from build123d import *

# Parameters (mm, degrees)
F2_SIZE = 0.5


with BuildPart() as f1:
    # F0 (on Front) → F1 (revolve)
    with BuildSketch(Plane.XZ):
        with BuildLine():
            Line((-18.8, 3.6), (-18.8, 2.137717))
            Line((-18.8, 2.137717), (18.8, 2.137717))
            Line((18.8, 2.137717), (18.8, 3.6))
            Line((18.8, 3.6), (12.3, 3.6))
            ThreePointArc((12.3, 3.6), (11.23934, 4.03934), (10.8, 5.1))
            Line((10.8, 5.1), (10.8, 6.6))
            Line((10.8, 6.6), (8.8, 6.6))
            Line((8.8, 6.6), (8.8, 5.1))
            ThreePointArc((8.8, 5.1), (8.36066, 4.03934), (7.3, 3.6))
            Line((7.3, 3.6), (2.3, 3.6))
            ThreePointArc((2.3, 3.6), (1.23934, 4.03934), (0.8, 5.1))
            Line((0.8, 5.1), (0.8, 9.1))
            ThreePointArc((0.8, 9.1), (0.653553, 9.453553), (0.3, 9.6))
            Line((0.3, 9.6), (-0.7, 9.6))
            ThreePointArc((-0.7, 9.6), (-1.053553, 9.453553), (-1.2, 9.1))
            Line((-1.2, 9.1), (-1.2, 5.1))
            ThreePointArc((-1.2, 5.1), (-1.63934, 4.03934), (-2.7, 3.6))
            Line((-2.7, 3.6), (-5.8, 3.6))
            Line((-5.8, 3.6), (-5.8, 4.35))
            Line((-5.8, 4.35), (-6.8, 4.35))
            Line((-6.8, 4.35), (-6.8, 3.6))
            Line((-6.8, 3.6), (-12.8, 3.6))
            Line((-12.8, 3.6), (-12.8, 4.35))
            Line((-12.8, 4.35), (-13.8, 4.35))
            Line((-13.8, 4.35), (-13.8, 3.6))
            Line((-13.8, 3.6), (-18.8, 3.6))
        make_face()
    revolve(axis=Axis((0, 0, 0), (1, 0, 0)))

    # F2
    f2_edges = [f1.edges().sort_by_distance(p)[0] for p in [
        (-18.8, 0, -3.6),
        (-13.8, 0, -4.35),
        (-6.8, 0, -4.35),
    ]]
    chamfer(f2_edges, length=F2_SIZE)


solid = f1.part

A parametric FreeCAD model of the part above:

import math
import FreeCAD as App
import Part
import Sketcher


def edges_at(feature, points):
    """Names of the edges that pass closest to the given points."""
    edges = feature.Shape.Edges
    near = lambda p: min(range(len(edges)), key=lambda i: edges[i].distToShape(Part.Vertex(*p))[0])
    return sorted({f"Edge{near(p) + 1}" for p in points})

doc = App.newDocument("Part")
body = doc.addObject("PartDesign::Body", "Body")

# Sketch on XZ plane
sketch1 = body.newObject("Sketcher::SketchObject", "Sketch")
sketch1.AttachmentSupport = (doc.getObject("XZ_Plane"), [""])
sketch1.MapMode = "FlatFace"
sketch1.addGeometry([
    Part.LineSegment(App.Vector(-18.8, 3.6, 0), App.Vector(-18.8, 2.137717, 0)),  # 0
    Part.LineSegment(App.Vector(-18.8, 2.137717, 0), App.Vector(18.8, 2.137717, 0)),  # 1
    Part.LineSegment(App.Vector(18.8, 2.137717, 0), App.Vector(18.8, 3.6, 0)),  # 2
    Part.LineSegment(App.Vector(18.8, 3.6, 0), App.Vector(12.3, 3.6, 0)),  # 3
    Part.ArcOfCircle(Part.Circle(App.Vector(12.300001, 5.100001, 0), App.Vector(0, 0, 1), 1.500001), math.radians(-179.999978), math.radians(-90.000022)),  # 4
    Part.LineSegment(App.Vector(10.8, 5.1, 0), App.Vector(10.8, 6.6, 0)),  # 5
    Part.LineSegment(App.Vector(10.8, 6.6, 0), App.Vector(8.8, 6.6, 0)),  # 6
    Part.LineSegment(App.Vector(8.8, 6.6, 0), App.Vector(8.8, 5.1, 0)),  # 7
    Part.ArcOfCircle(Part.Circle(App.Vector(7.299999, 5.100001, 0), App.Vector(0, 0, 1), 1.500001), math.radians(-89.999978), math.radians(-0.000022)),  # 8
    Part.LineSegment(App.Vector(7.3, 3.6, 0), App.Vector(2.3, 3.6, 0)),  # 9
    Part.ArcOfCircle(Part.Circle(App.Vector(2.300001, 5.100001, 0), App.Vector(0, 0, 1), 1.500001), math.radians(-179.999978), math.radians(-90.000022)),  # 10
    Part.LineSegment(App.Vector(0.8, 5.1, 0), App.Vector(0.8, 9.1, 0)),  # 11
    Part.ArcOfCircle(Part.Circle(App.Vector(0.299999, 9.099999, 0), App.Vector(0, 0, 1), 0.500001), math.radians(0.000153), math.radians(89.999847)),  # 12
    Part.LineSegment(App.Vector(0.3, 9.6, 0), App.Vector(-0.7, 9.6, 0)),  # 13
    Part.ArcOfCircle(Part.Circle(App.Vector(-0.699999, 9.099999, 0), App.Vector(0, 0, 1), 0.500001), math.radians(90.000153), math.radians(179.999847)),  # 14
    Part.LineSegment(App.Vector(-1.2, 9.1, 0), App.Vector(-1.2, 5.1, 0)),  # 15
    Part.ArcOfCircle(Part.Circle(App.Vector(-2.700001, 5.100001, 0), App.Vector(0, 0, 1), 1.500001), math.radians(-89.999978), math.radians(-0.000022)),  # 16
    Part.LineSegment(App.Vector(-2.7, 3.6, 0), App.Vector(-5.8, 3.6, 0)),  # 17
    Part.LineSegment(App.Vector(-5.8, 3.6, 0), App.Vector(-5.8, 4.35, 0)),  # 18
    Part.LineSegment(App.Vector(-5.8, 4.35, 0), App.Vector(-6.8, 4.35, 0)),  # 19
    Part.LineSegment(App.Vector(-6.8, 4.35, 0), App.Vector(-6.8, 3.6, 0)),  # 20
    Part.LineSegment(App.Vector(-6.8, 3.6, 0), App.Vector(-12.8, 3.6, 0)),  # 21
    Part.LineSegment(App.Vector(-12.8, 3.6, 0), App.Vector(-12.8, 4.35, 0)),  # 22
    Part.LineSegment(App.Vector(-12.8, 4.35, 0), App.Vector(-13.8, 4.35, 0)),  # 23
    Part.LineSegment(App.Vector(-13.8, 4.35, 0), App.Vector(-13.8, 3.6, 0)),  # 24
    Part.LineSegment(App.Vector(-13.8, 3.6, 0), App.Vector(-18.8, 3.6, 0)),  # 25
], False)
sketch1.addConstraint([
    Sketcher.Constraint("Coincident", 0, 2, 1, 1),
    Sketcher.Constraint("Coincident", 1, 2, 2, 1),
    Sketcher.Constraint("Coincident", 2, 2, 3, 1),
    Sketcher.Constraint("Tangent", 3, 2, 4, 2),
    Sketcher.Constraint("Tangent", 4, 1, 5, 1),
    Sketcher.Constraint("Coincident", 5, 2, 6, 1),
    Sketcher.Constraint("Coincident", 6, 2, 7, 1),
    Sketcher.Constraint("Tangent", 7, 2, 8, 2),
    Sketcher.Constraint("Tangent", 8, 1, 9, 1),
    Sketcher.Constraint("Tangent", 9, 2, 10, 2),
    Sketcher.Constraint("Tangent", 10, 1, 11, 1),
    Sketcher.Constraint("Coincident", 11, 2, 12, 1),
    Sketcher.Constraint("Coincident", 12, 2, 13, 1),
    Sketcher.Constraint("Coincident", 13, 2, 14, 1),
    Sketcher.Constraint("Coincident", 14, 2, 15, 1),
    Sketcher.Constraint("Tangent", 15, 2, 16, 2),
    Sketcher.Constraint("Tangent", 16, 1, 17, 1),
    Sketcher.Constraint("Coincident", 17, 2, 18, 1),
    Sketcher.Constraint("Coincident", 18, 2, 19, 1),
    Sketcher.Constraint("Coincident", 19, 2, 20, 1),
    Sketcher.Constraint("Coincident", 20, 2, 21, 1),
    Sketcher.Constraint("Coincident", 21, 2, 22, 1),
    Sketcher.Constraint("Coincident", 22, 2, 23, 1),
    Sketcher.Constraint("Coincident", 23, 2, 24, 1),
    Sketcher.Constraint("Coincident", 24, 2, 25, 1),
    Sketcher.Constraint("Coincident", 25, 2, 0, 1),
    Sketcher.Constraint("Vertical", 0),
    Sketcher.Constraint("Horizontal", 1),
    Sketcher.Constraint("Vertical", 2),
    Sketcher.Constraint("Horizontal", 3),
    Sketcher.Constraint("Vertical", 5),
    Sketcher.Constraint("Horizontal", 6),
    Sketcher.Constraint("Vertical", 7),
    Sketcher.Constraint("Horizontal", 9),
    Sketcher.Constraint("Vertical", 11),
    Sketcher.Constraint("Horizontal", 13),
    Sketcher.Constraint("Vertical", 15),
    Sketcher.Constraint("Horizontal", 17),
    Sketcher.Constraint("Vertical", 18),
    Sketcher.Constraint("Horizontal", 19),
    Sketcher.Constraint("Vertical", 20),
    Sketcher.Constraint("Horizontal", 21),
    Sketcher.Constraint("Vertical", 22),
    Sketcher.Constraint("Horizontal", 23),
    Sketcher.Constraint("Vertical", 24),
    Sketcher.Constraint("Horizontal", 25),
    Sketcher.Constraint("Equal", 4, 8),
    Sketcher.Constraint("Equal", 8, 10),
    Sketcher.Constraint("Equal", 12, 14),
    Sketcher.Constraint("Equal", 10, 16),
    Sketcher.Constraint("Symmetric", 2, 2, 25, 2, -2),
    Sketcher.Constraint("Horizontal", 4, 3, 8, 3),
    Sketcher.Constraint("Horizontal", 10, 3, 16, 3),
    Sketcher.Constraint("Horizontal", 14, 3, 11, 2),
    Sketcher.Constraint("Horizontal", 11, 2, 14, 2),
    Sketcher.Constraint("Horizontal", 17, 2, 20, 2),
    Sketcher.Constraint("Horizontal", 19, 2, 22, 2),
    Sketcher.Constraint("Vertical", 14, 3, 13, 2),
    Sketcher.Constraint("Equal", 13, 19),
    Sketcher.Constraint("Equal", 19, 23),
    Sketcher.Constraint("Equal", 9, 25),
    Sketcher.Constraint("Radius", 4, 1.500001),
    Sketcher.Constraint("Radius", 12, 0.500001),
    Sketcher.Constraint("DistanceX", 6, 2, 6, 1, 2.0),
    Sketcher.Constraint("DistanceX", 9, 2, 9, 1, 5.0),
    Sketcher.Constraint("DistanceX", 13, 2, 13, 1, 1.0),
    Sketcher.Constraint("DistanceX", 21, 2, 21, 1, 6.0),
    Sketcher.Constraint("DistanceY", 11, 1, 11, 2, 4.0),
    Sketcher.Constraint("DistanceX", 1, 1, 1, 2, 37.6),
    Sketcher.Constraint("DistanceX", 3, 2, 3, 1, 6.5),
    Sketcher.Constraint("DistanceX", 17, 2, 17, 1, 3.1),
    Sketcher.Constraint("DistanceY", 5, 1, 5, 2, 1.5),
    Sketcher.Constraint("DistanceY", 18, 1, 18, 2, 0.75),
    Sketcher.Constraint("DistanceY", -1, 1, 4, 3, 5.100001),
    Sketcher.Constraint("DistanceY", 0, 2, 0, 1, 1.462283),
])
revolution = body.newObject("PartDesign::Revolution", "Revolution")
revolution.Profile = sketch1
revolution.ReferenceAxis = (sketch1, ["H_Axis"])
revolution.Angle = 360
doc.recompute()

chamfer = body.newObject("PartDesign::Chamfer", "Chamfer")
chamfer.Base = (revolution, edges_at(revolution, [(-18.8, 0, -3.6), (-13.8, 0, -4.35), (-6.8, 0, -4.35)]))
chamfer.Size = 0.5

doc.recompute()
